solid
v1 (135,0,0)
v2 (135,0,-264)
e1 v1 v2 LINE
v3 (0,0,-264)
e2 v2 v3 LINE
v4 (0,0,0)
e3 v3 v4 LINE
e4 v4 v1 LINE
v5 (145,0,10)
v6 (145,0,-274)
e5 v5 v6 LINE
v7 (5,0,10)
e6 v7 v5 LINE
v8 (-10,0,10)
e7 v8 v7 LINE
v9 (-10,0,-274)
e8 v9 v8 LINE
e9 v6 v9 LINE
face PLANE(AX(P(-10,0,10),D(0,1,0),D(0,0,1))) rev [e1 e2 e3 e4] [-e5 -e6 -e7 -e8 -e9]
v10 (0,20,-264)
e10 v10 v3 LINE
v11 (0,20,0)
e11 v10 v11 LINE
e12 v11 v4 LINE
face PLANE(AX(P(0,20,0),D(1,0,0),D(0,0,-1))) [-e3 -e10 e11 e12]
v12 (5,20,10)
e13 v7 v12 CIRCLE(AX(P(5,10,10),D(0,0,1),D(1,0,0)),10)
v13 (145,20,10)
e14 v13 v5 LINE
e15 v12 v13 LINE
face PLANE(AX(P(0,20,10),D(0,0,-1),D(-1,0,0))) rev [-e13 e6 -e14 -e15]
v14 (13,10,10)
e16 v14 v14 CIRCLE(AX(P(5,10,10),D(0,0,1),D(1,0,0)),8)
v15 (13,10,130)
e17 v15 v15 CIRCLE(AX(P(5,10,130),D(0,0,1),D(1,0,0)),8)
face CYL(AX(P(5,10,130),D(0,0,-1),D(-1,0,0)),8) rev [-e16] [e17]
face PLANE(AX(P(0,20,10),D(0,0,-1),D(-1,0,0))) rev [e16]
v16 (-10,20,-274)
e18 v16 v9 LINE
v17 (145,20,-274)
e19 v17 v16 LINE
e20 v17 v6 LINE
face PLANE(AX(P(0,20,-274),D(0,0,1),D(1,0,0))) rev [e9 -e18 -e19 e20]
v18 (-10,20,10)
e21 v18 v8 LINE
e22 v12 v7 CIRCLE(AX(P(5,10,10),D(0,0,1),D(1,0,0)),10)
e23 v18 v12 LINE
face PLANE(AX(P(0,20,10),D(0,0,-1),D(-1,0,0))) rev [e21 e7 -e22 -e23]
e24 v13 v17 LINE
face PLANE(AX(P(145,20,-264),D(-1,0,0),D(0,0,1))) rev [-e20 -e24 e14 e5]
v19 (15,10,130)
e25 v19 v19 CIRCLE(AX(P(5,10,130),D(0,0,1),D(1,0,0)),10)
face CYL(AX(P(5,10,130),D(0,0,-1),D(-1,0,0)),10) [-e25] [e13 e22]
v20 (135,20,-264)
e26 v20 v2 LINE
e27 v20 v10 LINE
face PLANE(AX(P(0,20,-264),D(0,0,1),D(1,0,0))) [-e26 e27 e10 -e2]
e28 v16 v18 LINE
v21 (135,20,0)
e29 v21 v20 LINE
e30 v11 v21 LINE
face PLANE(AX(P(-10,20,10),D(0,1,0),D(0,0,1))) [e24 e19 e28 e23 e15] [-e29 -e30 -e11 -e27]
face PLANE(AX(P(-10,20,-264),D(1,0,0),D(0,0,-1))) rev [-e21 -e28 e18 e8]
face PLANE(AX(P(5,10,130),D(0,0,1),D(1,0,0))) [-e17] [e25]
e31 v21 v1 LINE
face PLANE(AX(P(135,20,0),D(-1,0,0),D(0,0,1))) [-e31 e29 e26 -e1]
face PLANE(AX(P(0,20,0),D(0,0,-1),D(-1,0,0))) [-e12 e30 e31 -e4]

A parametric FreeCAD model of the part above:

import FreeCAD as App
import Part
import Sketcher
from FreeCAD import Vector


def add_polygon(sketch, points):
    """Adds a closed chain of lines whose ends are joined by coincident constraints."""
    first, n = sketch.GeometryCount, len(points)
    for a, b in zip(points, points[1:] + points[:1]):
        sketch.addGeometry(Part.LineSegment(App.Vector(*a, 0), App.Vector(*b, 0)), False)
    for i in range(n):
        sketch.addConstraint(Sketcher.Constraint("Coincident", first + i, 2, first + (i + 1) % n, 1))

doc = App.newDocument("Part")
body = doc.addObject("PartDesign::Body", "Body")

# Sketch on XZ plane
sketch1 = body.newObject("Sketcher::SketchObject", "Sketch")
sketch1.AttachmentSupport = (doc.getObject("XZ_Plane"), [""])
sketch1.MapMode = "FlatFace"
add_polygon(sketch1, [(-10, -274), (-10, 10), (145, 10), (145, -274)])  # lines 0-3
add_polygon(sketch1, [(135, 0), (0, 0), (0, -264), (135, -264)])  # lines 4-7
sketch1.addConstraint(Sketcher.Constraint("Vertical", 0))
sketch1.addConstraint(Sketcher.Constraint("Horizontal", 1))
sketch1.addConstraint(Sketcher.Constraint("Vertical", 2))
sketch1.addConstraint(Sketcher.Constraint("Horizontal", 3))
sketch1.addConstraint(Sketcher.Constraint("Horizontal", 4))
sketch1.addConstraint(Sketcher.Constraint("Vertical", 5))
sketch1.addConstraint(Sketcher.Constraint("Horizontal", 6))
sketch1.addConstraint(Sketcher.Constraint("Vertical", 7))
sketch1.addConstraint(Sketcher.Constraint("Coincident", 4, 2, -1, 1))
sketch1.addConstraint(Sketcher.Constraint("DistanceX", 1, 1, 1, 2, 155.0))
sketch1.addConstraint(Sketcher.Constraint("DistanceX", 4, 2, 4, 1, 135.0))
sketch1.addConstraint(Sketcher.Constraint("DistanceY", 0, 1, 0, 2, 284.0))
sketch1.addConstraint(Sketcher.Constraint("DistanceY", 5, 2, 5, 1, 264.0))
sketch1.addConstraint(Sketcher.Constraint("DistanceX", 0, 2, -1, 1, 10.0))
sketch1.addConstraint(Sketcher.Constraint("DistanceY", -1, 1, 0, 2, 10.0))
pad1 = body.newObject("PartDesign::Pad", "Pad")
pad1.Profile = sketch1
pad1.Length = 20
pad1.Reversed = True

# Sketch on XY plane
sketch2 = body.newObject("Sketcher::SketchObject", "Sketch001")
sketch2.AttachmentSupport = (doc.getObject("XY_Plane"), [""])
sketch2.MapMode = "FlatFace"
sketch2.AttachmentOffset = App.Placement(Vector(0, 0, 10), App.Rotation())
sketch2.addGeometry(Part.Circle(Vector(5, 10, 0), Vector(0, 0, 1), 10), False)
sketch2.addGeometry(Part.Circle(Vector(5, 10, 0), Vector(0, 0, 1), 8), False)
sketch2.addConstraint(Sketcher.Constraint("Coincident", 1, 3, 0, 3))
sketch2.addConstraint(Sketcher.Constraint("Diameter", 0, 20.0))
sketch2.addConstraint(Sketcher.Constraint("Diameter", 1, 16.0))
sketch2.addConstraint(Sketcher.Constraint("DistanceX", -1, 1, 0, 3, 5.0))
sketch2.addConstraint(Sketcher.Constraint("DistanceY", -1, 1, 0, 3, 10.0))
pad2 = body.newObject("PartDesign::Pad", "Pad001")
pad2.Profile = sketch2
pad2.Length = 120

doc.recompute()
